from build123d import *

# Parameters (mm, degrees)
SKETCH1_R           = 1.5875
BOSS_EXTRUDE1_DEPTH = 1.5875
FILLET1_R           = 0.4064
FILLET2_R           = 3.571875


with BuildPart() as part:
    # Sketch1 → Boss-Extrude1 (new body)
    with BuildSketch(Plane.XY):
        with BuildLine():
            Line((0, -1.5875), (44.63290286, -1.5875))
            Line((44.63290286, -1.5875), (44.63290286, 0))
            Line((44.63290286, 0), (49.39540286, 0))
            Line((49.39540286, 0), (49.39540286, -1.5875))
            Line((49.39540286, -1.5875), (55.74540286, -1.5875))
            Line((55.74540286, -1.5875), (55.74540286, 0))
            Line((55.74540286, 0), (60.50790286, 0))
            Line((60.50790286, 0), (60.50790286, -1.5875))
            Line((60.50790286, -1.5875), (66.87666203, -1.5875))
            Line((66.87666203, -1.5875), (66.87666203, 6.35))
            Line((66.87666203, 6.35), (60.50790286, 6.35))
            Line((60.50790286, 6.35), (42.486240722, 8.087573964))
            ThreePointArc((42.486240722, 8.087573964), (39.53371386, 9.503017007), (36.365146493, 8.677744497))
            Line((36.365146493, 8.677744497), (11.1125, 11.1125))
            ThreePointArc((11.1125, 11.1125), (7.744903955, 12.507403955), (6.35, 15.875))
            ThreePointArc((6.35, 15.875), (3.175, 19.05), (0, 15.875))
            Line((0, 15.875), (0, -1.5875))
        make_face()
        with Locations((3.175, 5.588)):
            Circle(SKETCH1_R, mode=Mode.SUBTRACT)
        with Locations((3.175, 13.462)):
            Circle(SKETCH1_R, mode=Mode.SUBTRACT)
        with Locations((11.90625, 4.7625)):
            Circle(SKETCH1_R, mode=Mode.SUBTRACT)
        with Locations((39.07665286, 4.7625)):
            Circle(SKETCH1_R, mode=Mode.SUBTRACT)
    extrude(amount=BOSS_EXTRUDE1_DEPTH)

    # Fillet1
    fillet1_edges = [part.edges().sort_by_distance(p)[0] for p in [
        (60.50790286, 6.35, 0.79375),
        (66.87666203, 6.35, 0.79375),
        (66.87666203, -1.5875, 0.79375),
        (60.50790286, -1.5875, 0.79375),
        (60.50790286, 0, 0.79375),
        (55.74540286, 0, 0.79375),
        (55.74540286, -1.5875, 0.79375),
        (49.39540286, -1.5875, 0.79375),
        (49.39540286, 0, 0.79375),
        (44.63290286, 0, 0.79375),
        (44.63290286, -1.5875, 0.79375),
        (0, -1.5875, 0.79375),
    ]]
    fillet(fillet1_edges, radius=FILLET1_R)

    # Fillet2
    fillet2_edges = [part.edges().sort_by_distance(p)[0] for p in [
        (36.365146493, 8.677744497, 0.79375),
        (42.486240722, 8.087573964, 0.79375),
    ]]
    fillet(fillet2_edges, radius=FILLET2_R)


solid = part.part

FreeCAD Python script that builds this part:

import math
import FreeCAD as App
import Part
import Sketcher
Q = App.Units.Quantity


def edges_at(feature, points):
    """Names of the edges that pass closest to the given points."""
    edges = feature.Shape.Edges
    near = lambda p: min(range(len(edges)), key=lambda i: edges[i].distToShape(Part.Vertex(*p))[0])
    return sorted({f"Edge{near(p) + 1}" for p in points})

doc = App.newDocument("Part")
body = doc.addObject("PartDesign::Body", "Body")

sketch1 = body.newObject("Sketcher::SketchObject", "Sketch")
sketch1.AttachmentSupport = (doc.getObject("XY_Plane"), [""])
sketch1.MapMode = "FlatFace"
sketch1.addGeometry([
    Part.LineSegment(App.Vector(0, -1.6, 0), App.Vector(44.6, -1.6, 0)),
    Part.LineSegment(App.Vector(44.6, -1.6, 0), App.Vector(44.6, 0, 0)),
    Part.LineSegment(App.Vector(44.6, 0, 0), App.Vector(49.4, 0, 0)),
    Part.LineSegment(App.Vector(49.4, 0, 0), App.Vector(49.4, -1.6, 0)),
    Part.LineSegment(App.Vector(49.4, -1.6, 0), App.Vector(55.7, -1.6, 0)),
    Part.LineSegment(App.Vector(55.7, -1.6, 0), App.Vector(55.7, 0, 0)),
    Part.LineSegment(App.Vector(55.7, 0, 0), App.Vector(60.5, 0, 0)),
    Part.LineSegment(App.Vector(60.5, 0, 0), App.Vector(60.5, -1.6, 0)),
    Part.LineSegment(App.Vector(60.5, -1.6, 0), App.Vector(66.9, -1.6, 0)),
    Part.LineSegment(App.Vector(66.9, -1.6, 0), App.Vector(66.9, 6.3, 0)),
    Part.LineSegment(App.Vector(66.9, 6.3, 0), App.Vector(60.5, 6.3, 0)),
    Part.LineSegment(App.Vector(60.5, 6.3, 0), App.Vector(42.5, 8.1, 0)),
    Part.ArcOfCircle(Part.Circle(App.Vector(39.1, 4.8, 0), App.Vector(0, 0, 1), 4.8), math.radians(44), math.radians(125)),
    Part.LineSegment(App.Vector(36.4, 8.7, 0), App.Vector(11.1, 11.1, 0)),
    Part.ArcOfCircle(Part.Circle(App.Vector(11.1, 15.9, 0), App.Vector(0, 0, 1), 4.8), math.radians(-180), math.radians(-90)),
    Part.ArcOfCircle(Part.Circle(App.Vector(3.2, 15.9, 0), App.Vector(0, 0, 1), 3.2), math.radians(0), math.radians(180)),
    Part.LineSegment(App.Vector(0, 15.9, 0), App.Vector(0, -1.6, 0)),
    Part.Circle(App.Vector(3.2, 5.6, 0), App.Vector(0, 0, 1), 1.6),
    Part.Circle(App.Vector(11.9, 4.8, 0), App.Vector(0, 0, 1), 1.6),
    Part.Circle(App.Vector(39.1, 4.8, 0), App.Vector(0, 0, 1), 1.6),
    Part.Circle(App.Vector(3.2, 13.5, 0), App.Vector(0, 0, 1), 1.6),
], False)
sketch1.addConstraint([
    Sketcher.Constraint("Coincident", 0, 2, 1, 1),
    Sketcher.Constraint("Coincident", 1, 2, 2, 1),
    Sketcher.Constraint("Coincident", 2, 2, 3, 1),
    Sketcher.Constraint("Coincident", 3, 2, 4, 1),
    Sketcher.Constraint("Coincident", 4, 2, 5, 1),
    Sketcher.Constraint("Coincident", 5, 2, 6, 1),
    Sketcher.Constraint("Coincident", 6, 2, 7, 1),
    Sketcher.Constraint("Coincident", 7, 2, 8, 1),
    Sketcher.Constraint("Coincident", 8, 2, 9, 1),
    Sketcher.Constraint("Coincident", 9, 2, 10, 1),
    Sketcher.Constraint("Coincident", 10, 2, 11, 1),
    Sketcher.Constraint("Coincident", 11, 2, 12, 1),
    Sketcher.Constraint("Coincident", 12, 2, 13, 1),
    Sketcher.Constraint("Coincident", 13, 2, 14, 2),
    Sketcher.Constraint("Tangent", 14, 1, 15, 1),
    Sketcher.Constraint("Tangent", 15, 2, 16, 1),
    Sketcher.Constraint("Coincident", 16, 2, 0, 1),
    Sketcher.Constraint("Horizontal", 0),
    Sketcher.Constraint("Vertical", 1),
    Sketcher.Constraint("Horizontal", 2),
    Sketcher.Constraint("Vertical", 3),
    Sketcher.Constraint("Horizontal", 4),
    Sketcher.Constraint("Vertical", 5),
    Sketcher.Constraint("Horizontal", 6),
    Sketcher.Constraint("Vertical", 7),
    Sketcher.Constraint("Horizontal", 8),
    Sketcher.Constraint("Vertical", 9),
    Sketcher.Constraint("Horizontal", 10),
    Sketcher.Constraint("Vertical", 16),
    Sketcher.Constraint("Coincident", 19, 3, 12, 3),
    Sketcher.Constraint("Equal", 12, 14),
    Sketcher.Constraint("Equal", 17, 18),
    Sketcher.Constraint("Equal", 18, 19),
    Sketcher.Constraint("Equal", 19, 20),
    Sketcher.Constraint("PointOnObject", 1, 2, -1),
    Sketcher.Constraint("PointOnObject", 5, 2, -1),
    Sketcher.Constraint("PointOnObject", 15, 2, -2),
    Sketcher.Constraint("Parallel", 11, 13),
    Sketcher.Constraint("Horizontal", 14, 3, 15, 3),
    Sketcher.Constraint("Horizontal", 12, 3, 18, 3),
    Sketcher.Constraint("Horizontal", 0, 2, 3, 2),
    Sketcher.Constraint("Horizontal", 4, 2, 7, 2),
    Sketcher.Constraint("Vertical", 15, 3, 17, 3),
    Sketcher.Constraint("Vertical", 17, 3, 20, 3),
    Sketcher.Constraint("Vertical", 7, 2, 10, 2),
    Sketcher.Constraint("Vertical", 14, 3, 13, 2),
    Sketcher.Constraint("Equal", 2, 6),
    Sketcher.Constraint("Diameter", 17, Q("0.125 in")),
    Sketcher.Constraint("Radius", 12, Q("0.1875 in")),
    Sketcher.Constraint("Radius", 15, Q("0.125 in")),
    Sketcher.Constraint("DistanceX", 4, 1, 4, 2, Q("0.25 in")),
    Sketcher.Constraint("DistanceY", 16, 2, 13, 2, Q("0.5 in")),
    Sketcher.Constraint("DistanceX", 2, 1, 2, 2, Q("0.1875 in")),
    Sketcher.Constraint("DistanceY", 1, 1, 1, 2, Q("0.0625 in")),
    Sketcher.Constraint("DistanceY", 9, 1, 9, 2, Q("0.3125 in")),
    Sketcher.Constraint("DistanceY", -1, 1, 17, 3, Q("0.22 in")),
    Sketcher.Constraint("DistanceY", -1, 1, 20, 3, Q("0.53 in")),
    Sketcher.Constraint("DistanceY", 0, 2, 12, 3, Q("0.25 in")),
    Sketcher.Constraint("DistanceX", -1, 1, 18, 3, Q("0.46875 in")),
    Sketcher.Constraint("DistanceX", 12, 3, 0, 2, Q("0.21875 in")),
    Sketcher.Constraint("DistanceX", 8, 1, 8, 2, 6.368759),
    Sketcher.Constraint("Distance", 13, 25.369749),
    Sketcher.Constraint("DistanceX", 0, 1, 0, 2, 44.632903),
])
pad1 = body.newObject("PartDesign::Pad", "Pad")
pad1.Profile = sketch1
pad1.Length = Q("0.0625 in")
doc.recompute()

fillet = body.newObject("PartDesign::Fillet", "Fillet")
fillet.Base = (pad1, edges_at(pad1, [
    (60.508, 6.35, 0.794),
    (66.877, 6.35, 0.794),
    (66.877, -1.587, 0.794),
    (60.508, -1.587, 0.794),
    (60.508, 0, 0.794),
    (55.745, 0, 0.794),
    (55.745, -1.587, 0.794),
    (49.395, -1.587, 0.794),
    (49.395, 0, 0.794),
    (44.633, 0, 0.794),
    (44.633, -1.587, 0.794),
    (0, -1.587, 0.794),
]))
fillet.Radius = Q("0.016 in")
doc.recompute()

fillet2 = body.newObject("PartDesign::Fillet", "Fillet001")
fillet2.Base = (fillet, edges_at(fillet, [(36.365, 8.678, 0.794), (42.486, 8.088, 0.794)]))
fillet2.Radius = Q("0.140625 in")

doc.recompute()
